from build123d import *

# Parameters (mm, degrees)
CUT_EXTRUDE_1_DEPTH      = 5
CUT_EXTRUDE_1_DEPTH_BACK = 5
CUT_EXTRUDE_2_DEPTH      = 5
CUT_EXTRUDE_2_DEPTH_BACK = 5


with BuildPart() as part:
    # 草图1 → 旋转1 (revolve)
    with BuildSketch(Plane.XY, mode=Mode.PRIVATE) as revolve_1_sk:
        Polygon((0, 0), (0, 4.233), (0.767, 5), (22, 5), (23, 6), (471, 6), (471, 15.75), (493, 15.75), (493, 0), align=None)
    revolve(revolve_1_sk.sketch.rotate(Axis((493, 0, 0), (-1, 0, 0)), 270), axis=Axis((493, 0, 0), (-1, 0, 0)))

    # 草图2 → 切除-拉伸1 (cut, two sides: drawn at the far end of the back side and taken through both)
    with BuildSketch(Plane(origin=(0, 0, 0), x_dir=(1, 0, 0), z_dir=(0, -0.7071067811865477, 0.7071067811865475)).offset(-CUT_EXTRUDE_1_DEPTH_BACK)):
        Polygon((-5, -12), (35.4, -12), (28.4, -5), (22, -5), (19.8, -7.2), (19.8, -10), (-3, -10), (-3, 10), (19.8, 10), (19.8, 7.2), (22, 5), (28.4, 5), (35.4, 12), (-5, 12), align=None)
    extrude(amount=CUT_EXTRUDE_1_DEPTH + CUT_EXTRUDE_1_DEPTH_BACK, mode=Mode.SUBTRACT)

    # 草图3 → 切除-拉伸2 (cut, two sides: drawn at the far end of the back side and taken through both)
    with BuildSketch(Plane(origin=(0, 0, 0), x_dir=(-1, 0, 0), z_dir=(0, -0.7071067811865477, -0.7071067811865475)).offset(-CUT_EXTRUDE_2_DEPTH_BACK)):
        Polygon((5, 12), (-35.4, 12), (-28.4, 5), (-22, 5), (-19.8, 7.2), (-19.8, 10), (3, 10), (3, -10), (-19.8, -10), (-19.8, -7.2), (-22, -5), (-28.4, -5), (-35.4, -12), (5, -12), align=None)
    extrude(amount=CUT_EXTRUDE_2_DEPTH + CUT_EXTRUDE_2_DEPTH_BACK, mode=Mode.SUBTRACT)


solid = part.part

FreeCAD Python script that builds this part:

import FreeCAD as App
import Part
import Sketcher
from FreeCAD import Vector
Q = App.Units.Quantity

doc = App.newDocument("Part")
body = doc.addObject("PartDesign::Body", "Body")

# Sketch on XY plane
sketch1 = body.newObject("Sketcher::SketchObject", "Sketch")
sketch1.AttachmentSupport = (doc.getObject("XY_Plane"), [""])
sketch1.MapMode = "FlatFace"
sketch1.addGeometry(Part.LineSegment(Vector(0, 4.2, 0), Vector(0, 0, 0)), False)
sketch1.addGeometry(Part.LineSegment(Vector(0, 0, 0), Vector(493, 0, 0)), False)
sketch1.addGeometry(Part.LineSegment(Vector(493, 0, 0), Vector(493, 15.8, 0)), False)
sketch1.addGeometry(Part.LineSegment(Vector(493, 15.8, 0), Vector(471, 15.8, 0)), False)
sketch1.addGeometry(Part.LineSegment(Vector(471, 15.8, 0), Vector(471, 6, 0)), False)
sketch1.addGeometry(Part.LineSegment(Vector(471, 6, 0), Vector(23, 6, 0)), False)
sketch1.addGeometry(Part.LineSegment(Vector(23, 6, 0), Vector(22, 5, 0)), False)
sketch1.addGeometry(Part.LineSegment(Vector(22, 5, 0), Vector(0.8, 5, 0)), False)
sketch1.addGeometry(Part.LineSegment(Vector(0.8, 5, 0), Vector(0, 4.2, 0)), False)
sketch1.addConstraint(Sketcher.Constraint("Coincident", 0, 2, 1, 1))
sketch1.addConstraint(Sketcher.Constraint("Coincident", 1, 2, 2, 1))
sketch1.addConstraint(Sketcher.Constraint("Coincident", 2, 2, 3, 1))
sketch1.addConstraint(Sketcher.Constraint("Coincident", 3, 2, 4, 1))
sketch1.addConstraint(Sketcher.Constraint("Coincident", 4, 2, 5, 1))
sketch1.addConstraint(Sketcher.Constraint("Coincident", 5, 2, 6, 1))
sketch1.addConstraint(Sketcher.Constraint("Coincident", 6, 2, 7, 1))
sketch1.addConstraint(Sketcher.Constraint("Coincident", 7, 2, 8, 1))
sketch1.addConstraint(Sketcher.Constraint("Coincident", 8, 2, 0, 1))
sketch1.addConstraint(Sketcher.Constraint("Vertical", 0))
sketch1.addConstraint(Sketcher.Constraint("Horizontal", 1))
sketch1.addConstraint(Sketcher.Constraint("Vertical", 2))
sketch1.addConstraint(Sketcher.Constraint("Horizontal", 3))
sketch1.addConstraint(Sketcher.Constraint("Vertical", 4))
sketch1.addConstraint(Sketcher.Constraint("Horizontal", 5))
sketch1.addConstraint(Sketcher.Constraint("Horizontal", 7))
sketch1.addConstraint(Sketcher.Constraint("Coincident", 0, 2, -1, 1))
sketch1.addConstraint(Sketcher.Constraint("Parallel", 6, 8))
sketch1.addConstraint(Sketcher.Constraint("DistanceX", 1, 1, 1, 2, Q("493 mm")))
sketch1.addConstraint(Sketcher.Constraint("DistanceX", 3, 2, 3, 1, Q("22 mm")))
sketch1.addConstraint(Sketcher.Constraint("DistanceX", 5, 2, 5, 1, Q("448 mm")))
sketch1.addConstraint(Sketcher.Constraint("Angle", 6, Q("-135 deg")))
sketch1.addConstraint(Sketcher.Constraint("DistanceY", -1, 1, 4, 2, Q("6 mm")))
sketch1.addConstraint(Sketcher.Constraint("DistanceX", -1, 1, 6, 2, Q("22 mm")))
sketch1.addConstraint(Sketcher.Constraint("DistanceY", 2, 1, 2, 2, Q("15.75 mm")))
sketch1.addConstraint(Sketcher.Constraint("DistanceX", 7, 2, 7, 1, Q("21.233 mm")))
revolution = body.newObject("PartDesign::Revolution", "Revolution")
revolution.Profile = sketch1
revolution.ReferenceAxis = (sketch1, ["H_Axis"])
revolution.Angle = 360

# Sketch on an angled plane
sketch2 = body.newObject("Sketcher::SketchObject", "Sketch001")
sketch2.Placement = App.Placement(Vector(0, 0, 0), App.Rotation(Vector(1, 0, 0), Vector(0, 0.707106781, 0.707106781), Vector(0, -0.707106781, 0.707106781), "ZXY"))
sketch2.addGeometry(Part.LineSegment(Vector(-5, -12, 0), Vector(35.4, -12, 0)), False)
sketch2.addGeometry(Part.LineSegment(Vector(35.4, -12, 0), Vector(28.4, -5, 0)), False)
sketch2.addGeometry(Part.LineSegment(Vector(28.4, -5, 0), Vector(22, -5, 0)), False)
sketch2.addGeometry(Part.LineSegment(Vector(22, -5, 0), Vector(19.8, -7.2, 0)), False)
sketch2.addGeometry(Part.LineSegment(Vector(19.8, -7.2, 0), Vector(19.8, -10, 0)), False)
sketch2.addGeometry(Part.LineSegment(Vector(19.8, -10, 0), Vector(-3, -10, 0)), False)
sketch2.addGeometry(Part.LineSegment(Vector(-3, -10, 0), Vector(-3, 10, 0)), False)
sketch2.addGeometry(Part.LineSegment(Vector(-3, 10, 0), Vector(19.8, 10, 0)), False)
sketch2.addGeometry(Part.LineSegment(Vector(19.8, 10, 0), Vector(19.8, 7.2, 0)), False)
sketch2.addGeometry(Part.LineSegment(Vector(19.8, 7.2, 0), Vector(22, 5, 0)), False)
sketch2.addGeometry(Part.LineSegment(Vector(22, 5, 0), Vector(28.4, 5, 0)), False)
sketch2.addGeometry(Part.LineSegment(Vector(28.4, 5, 0), Vector(35.4, 12, 0)), False)
sketch2.addGeometry(Part.LineSegment(Vector(35.4, 12, 0), Vector(-5, 12, 0)), False)
sketch2.addGeometry(Part.LineSegment(Vector(-5, 12, 0), Vector(-5, -12, 0)), False)
sketch2.addConstraint(Sketcher.Constraint("Coincident", 0, 2, 1, 1))
sketch2.addConstraint(Sketcher.Constraint("Coincident", 1, 2, 2, 1))
sketch2.addConstraint(Sketcher.Constraint("Coincident", 2, 2, 3, 1))
sketch2.addConstraint(Sketcher.Constraint("Coincident", 3, 2, 4, 1))
sketch2.addConstraint(Sketcher.Constraint("Coincident", 4, 2, 5, 1))
sketch2.addConstraint(Sketcher.Constraint("Coincident", 5, 2, 6, 1))
sketch2.addConstraint(Sketcher.Constraint("Coincident", 6, 2, 7, 1))
sketch2.addConstraint(Sketcher.Constraint("Coincident", 7, 2, 8, 1))
sketch2.addConstraint(Sketcher.Constraint("Coincident", 8, 2, 9, 1))
sketch2.addConstraint(Sketcher.Constraint("Coincident", 9, 2, 10, 1))
sketch2.addConstraint(Sketcher.Constraint("Coincident", 10, 2, 11, 1))
sketch2.addConstraint(Sketcher.Constraint("Coincident", 11, 2, 12, 1))
sketch2.addConstraint(Sketcher.Constraint("Coincident", 12, 2, 13, 1))
sketch2.addConstraint(Sketcher.Constraint("Coincident", 13, 2, 0, 1))
sketch2.addConstraint(Sketcher.Constraint("Horizontal", 0))
sketch2.addConstraint(Sketcher.Constraint("Horizontal", 2))
sketch2.addConstraint(Sketcher.Constraint("Vertical", 4))
sketch2.addConstraint(Sketcher.Constraint("Horizontal", 5))
sketch2.addConstraint(Sketcher.Constraint("Vertical", 6))
sketch2.addConstraint(Sketcher.Constraint("Horizontal", 7))
sketch2.addConstraint(Sketcher.Constraint("Vertical", 8))
sketch2.addConstraint(Sketcher.Constraint("Horizontal", 10))
sketch2.addConstraint(Sketcher.Constraint("Horizontal", 12))
sketch2.addConstraint(Sketcher.Constraint("Vertical", 13))
sketch2.addConstraint(Sketcher.Constraint("Symmetric", 4, 2, 7, 2, -1))
sketch2.addConstraint(Sketcher.Constraint("Symmetric", 2, 2, 9, 2, -1))
sketch2.addConstraint(Sketcher.Constraint("Symmetric", 0, 2, 11, 2, -1))
sketch2.addConstraint(Sketcher.Constraint("Perpendicular", 1, 3))
sketch2.addConstraint(Sketcher.Constraint("Perpendicular", 3, 9))
sketch2.addConstraint(Sketcher.Constraint("Perpendicular", 9, 11))
sketch2.addConstraint(Sketcher.Constraint("Vertical", 1, 2, 10, 2))
sketch2.addConstraint(Sketcher.Constraint("DistanceY", 6, 1, 6, 2, Q("20 mm")))
sketch2.addConstraint(Sketcher.Constraint("DistanceY", 13, 2, 13, 1, Q("24 mm")))
sketch2.addConstraint(Sketcher.Constraint("DistanceX", 0, 1, 0, 2, Q("40.4 mm")))
sketch2.addConstraint(Sketcher.Constraint("DistanceX", 2, 2, 2, 1, Q("6.4 mm")))
sketch2.addConstraint(Sketcher.Constraint("DistanceX", 5, 2, 5, 1, Q("22.8 mm")))
sketch2.addConstraint(Sketcher.Constraint("DistanceY", 4, 2, 4, 1, Q("2.8 mm")))
sketch2.addConstraint(Sketcher.Constraint("DistanceY", 1, 2, -1, 1, Q("5 mm")))
sketch2.addConstraint(Sketcher.Constraint("DistanceX", -1, 1, 2, 2, Q("22 mm")))
pocket1 = body.newObject("PartDesign::Pocket", "Pocket")
pocket1.Profile = sketch2
pocket1.Type = "ThroughAll"
pocket1.Midplane = True

# Sketch on an angled plane
sketch3 = body.newObject("Sketcher::SketchObject", "Sketch002")
sketch3.Placement = App.Placement(Vector(0, 0, 0), App.Rotation(Vector(-1, 0, 0), Vector(0, 0.707106781, -0.707106781), Vector(0, -0.707106781, -0.707106781), "ZXY"))
sketch3.addGeometry(Part.LineSegment(Vector(5, 12, 0), Vector(-35.4, 12, 0)), False)
sketch3.addGeometry(Part.LineSegment(Vector(-35.4, 12, 0), Vector(-28.4, 5, 0)), False)
sketch3.addGeometry(Part.LineSegment(Vector(-28.4, 5, 0), Vector(-22, 5, 0)), False)
sketch3.addGeometry(Part.LineSegment(Vector(-22, 5, 0), Vector(-19.8, 7.2, 0)), False)
sketch3.addGeometry(Part.LineSegment(Vector(-19.8, 7.2, 0), Vector(-19.8, 10, 0)), False)
sketch3.addGeometry(Part.LineSegment(Vector(-19.8, 10, 0), Vector(3, 10, 0)), False)
sketch3.addGeometry(Part.LineSegment(Vector(3, 10, 0), Vector(3, -10, 0)), False)
sketch3.addGeometry(Part.LineSegment(Vector(3, -10, 0), Vector(-19.8, -10, 0)), False)
sketch3.addGeometry(Part.LineSegment(Vector(-19.8, -10, 0), Vector(-19.8, -7.2, 0)), False)
sketch3.addGeometry(Part.LineSegment(Vector(-19.8, -7.2, 0), Vector(-22, -5, 0)), False)
sketch3.addGeometry(Part.LineSegment(Vector(-22, -5, 0), Vector(-28.4, -5, 0)), False)
sketch3.addGeometry(Part.LineSegment(Vector(-28.4, -5, 0), Vector(-35.4, -12, 0)), False)
sketch3.addGeometry(Part.LineSegment(Vector(-35.4, -12, 0), Vector(5, -12, 0)), False)
sketch3.addGeometry(Part.LineSegment(Vector(5, -12, 0), Vector(5, 12, 0)), False)
sketch3.addConstraint(Sketcher.Constraint("Coincident", 0, 2, 1, 1))
sketch3.addConstraint(Sketcher.Constraint("Coincident", 1, 2, 2, 1))
sketch3.addConstraint(Sketcher.Constraint("Coincident", 2, 2, 3, 1))
sketch3.addConstraint(Sketcher.Constraint("Coincident", 3, 2, 4, 1))
sketch3.addConstraint(Sketcher.Constraint("Coincident", 4, 2, 5, 1))
sketch3.addConstraint(Sketcher.Constraint("Coincident", 5, 2, 6, 1))
sketch3.addConstraint(Sketcher.Constraint("Coincident", 6, 2, 7, 1))
sketch3.addConstraint(Sketcher.Constraint("Coincident", 7, 2, 8, 1))
sketch3.addConstraint(Sketcher.Constraint("Coincident", 8, 2, 9, 1))
sketch3.addConstraint(Sketcher.Constraint("Coincident", 9, 2, 10, 1))
sketch3.addConstraint(Sketcher.Constraint("Coincident", 10, 2, 11, 1))
sketch3.addConstraint(Sketcher.Constraint("Coincident", 11, 2, 12, 1))
sketch3.addConstraint(Sketcher.Constraint("Coincident", 12, 2, 13, 1))
sketch3.addConstraint(Sketcher.Constraint("Coincident", 13, 2, 0, 1))
sketch3.addConstraint(Sketcher.Constraint("Horizontal", 0))
sketch3.addConstraint(Sketcher.Constraint("Horizontal", 2))
sketch3.addConstraint(Sketcher.Constraint("Vertical", 4))
sketch3.addConstraint(Sketcher.Constraint("Horizontal", 5))
sketch3.addConstraint(Sketcher.Constraint("Vertical", 6))
sketch3.addConstraint(Sketcher.Constraint("Horizontal", 7))
sketch3.addConstraint(Sketcher.Constraint("Vertical", 8))
sketch3.addConstraint(Sketcher.Constraint("Horizontal", 10))
sketch3.addConstraint(Sketcher.Constraint("Horizontal", 12))
sketch3.addConstraint(Sketcher.Constraint("Vertical", 13))
sketch3.addConstraint(Sketcher.Constraint("Symmetric", 4, 2, 7, 2, -1))
sketch3.addConstraint(Sketcher.Constraint("Symmetric", 2, 2, 9, 2, -1))
sketch3.addConstraint(Sketcher.Constraint("Symmetric", 0, 2, 11, 2, -1))
sketch3.addConstraint(Sketcher.Constraint("Perpendicular", 1, 3))
sketch3.addConstraint(Sketcher.Constraint("Perpendicular", 3, 9))
sketch3.addConstraint(Sketcher.Constraint("Perpendicular", 9, 11))
sketch3.addConstraint(Sketcher.Constraint("Vertical", 1, 2, 10, 2))
sketch3.addConstraint(Sketcher.Constraint("DistanceY", 6, 2, 6, 1, Q("20 mm")))
sketch3.addConstraint(Sketcher.Constraint("DistanceY", 13, 1, 13, 2, Q("24 mm")))
sketch3.addConstraint(Sketcher.Constraint("DistanceX", 0, 2, 0, 1, Q("40.4 mm")))
sketch3.addConstraint(Sketcher.Constraint("DistanceX", 2, 1, 2, 2, Q("6.4 mm")))
sketch3.addConstraint(Sketcher.Constraint("DistanceX", 5, 1, 5, 2, Q("22.8 mm")))
sketch3.addConstraint(Sketcher.Constraint("DistanceY", 4, 1, 4, 2, Q("2.8 mm")))
sketch3.addConstraint(Sketcher.Constraint("DistanceY", -1, 1, 1, 2, Q("5 mm")))
sketch3.addConstraint(Sketcher.Constraint("DistanceX", 2, 2, -1, 1, Q("22 mm")))
pocket2 = body.newObject("PartDesign::Pocket", "Pocket001")
pocket2.Profile = sketch3
pocket2.Type = "ThroughAll"
pocket2.Midplane = True

doc.recompute()
